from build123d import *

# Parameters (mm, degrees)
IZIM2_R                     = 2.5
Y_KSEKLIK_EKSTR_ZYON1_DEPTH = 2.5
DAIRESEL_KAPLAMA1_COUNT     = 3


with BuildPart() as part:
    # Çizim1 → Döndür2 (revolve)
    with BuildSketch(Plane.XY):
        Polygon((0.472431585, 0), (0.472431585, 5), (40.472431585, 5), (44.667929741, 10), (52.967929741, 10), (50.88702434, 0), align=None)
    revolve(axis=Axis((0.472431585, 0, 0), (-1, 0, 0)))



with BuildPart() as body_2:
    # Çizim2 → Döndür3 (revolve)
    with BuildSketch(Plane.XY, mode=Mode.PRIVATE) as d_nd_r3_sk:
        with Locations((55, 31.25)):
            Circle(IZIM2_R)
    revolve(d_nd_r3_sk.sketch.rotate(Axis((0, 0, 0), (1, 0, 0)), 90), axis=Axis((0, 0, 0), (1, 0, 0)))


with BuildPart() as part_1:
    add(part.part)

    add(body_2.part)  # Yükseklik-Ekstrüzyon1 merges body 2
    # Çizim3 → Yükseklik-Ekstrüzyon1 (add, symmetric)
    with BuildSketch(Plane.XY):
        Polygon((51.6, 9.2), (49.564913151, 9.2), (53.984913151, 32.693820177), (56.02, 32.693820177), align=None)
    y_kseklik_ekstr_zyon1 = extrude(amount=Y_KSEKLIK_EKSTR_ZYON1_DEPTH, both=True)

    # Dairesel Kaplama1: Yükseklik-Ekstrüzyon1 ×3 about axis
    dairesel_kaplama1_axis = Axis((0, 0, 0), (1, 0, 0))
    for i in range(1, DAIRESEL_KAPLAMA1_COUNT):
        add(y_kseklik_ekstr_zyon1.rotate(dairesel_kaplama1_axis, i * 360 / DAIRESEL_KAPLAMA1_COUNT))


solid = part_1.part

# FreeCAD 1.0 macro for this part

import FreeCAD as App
import Part
import Sketcher

V = App.Vector
Q = App.Units.Quantity

doc = App.newDocument("Part")
params = doc.addObject("Spreadsheet::Sheet", "Params")
for row, (alias, value) in enumerate([
    ("sketch1_width", "40 mm"),
    ("sketch1_height", "5 mm"),
    ("sketch1_width2", "8.3 mm"),
    ("revolution_angle", "360 deg"),
    ("sketch2_diameter", "5 mm"),
    ("revolution2_angle", "360 deg"),
    ("pad1_length", "5 mm"),
], start=1):
    params.set(f"A{row}", alias)
    params.set(f"B{row}", "=" + value)
    params.setAlias(f"B{row}", alias)

body = doc.addObject("PartDesign::Body", "Body")

sketch1 = doc.addObject("Sketcher::SketchObject", "Sketch")
body.addObject(sketch1)
sketch1.AttachmentSupport = (doc.XY_Plane, [""])
sketch1.MapMode = "FlatFace"
sketch1.addGeometry(Part.LineSegment(V(0.472432, 5, 0), V(0.472432, 0, 0)), False)
sketch1.addGeometry(Part.LineSegment(V(0.472432, 0, 0), V(50.887024, 0, 0)), False)
sketch1.addGeometry(Part.LineSegment(V(50.887024, 0, 0), V(52.96793, 10, 0)), False)
sketch1.addGeometry(Part.LineSegment(V(52.96793, 10, 0), V(44.66793, 10, 0)), False)
sketch1.addGeometry(Part.LineSegment(V(44.66793, 10, 0), V(40.472432, 5, 0)), False)
sketch1.addGeometry(Part.LineSegment(V(40.472432, 5, 0), V(0.472432, 5, 0)), False)
sketch1.addConstraint(Sketcher.Constraint("Coincident", 0, 2, 1, 1))
sketch1.addConstraint(Sketcher.Constraint("Coincident", 1, 2, 2, 1))
sketch1.addConstraint(Sketcher.Constraint("Coincident", 2, 2, 3, 1))
sketch1.addConstraint(Sketcher.Constraint("Coincident", 3, 2, 4, 1))
sketch1.addConstraint(Sketcher.Constraint("Coincident", 4, 2, 5, 1))
sketch1.addConstraint(Sketcher.Constraint("Coincident", 5, 2, 0, 1))
sketch1.addConstraint(Sketcher.Constraint("Vertical", 0))
sketch1.addConstraint(Sketcher.Constraint("Horizontal", 1))
sketch1.addConstraint(Sketcher.Constraint("Horizontal", 3))
sketch1.addConstraint(Sketcher.Constraint("Horizontal", 5))
sketch1.addConstraint(Sketcher.Constraint("PointOnObject", 0, 2, -1))
sketch1.addConstraint(Sketcher.Constraint("DistanceX", 5, 2, 5, 1, Q("40 mm")))
sketch1.addConstraint(Sketcher.Constraint("DistanceY", 0, 2, 0, 1, Q("5 mm")))
sketch1.addConstraint(Sketcher.Constraint("Angle", 4, Q("-130 deg")))
sketch1.addConstraint(Sketcher.Constraint("DistanceX", 3, 2, 3, 1, Q("8.3 mm")))
sketch1.addConstraint(Sketcher.Constraint("DistanceY", -1, 1, 2, 2, Q("10 mm")))
sketch1.addConstraint(Sketcher.Constraint("DistanceX", 1, 1, 1, 2, Q("50.414593 mm")))
sketch1.addConstraint(Sketcher.Constraint("DistanceX", -1, 1, 0, 2, Q("0.472432 mm")))
sketch1.setExpression("Constraints[11]", "Params.sketch1_width")
sketch1.setExpression("Constraints[12]", "Params.sketch1_height")
sketch1.setExpression("Constraints[14]", "Params.sketch1_width2")
revolution = doc.addObject("PartDesign::Revolution", "Revolution")
body.addObject(revolution)
revolution.Profile = sketch1
revolution.ReferenceAxis = (sketch1, ["H_Axis"])
revolution.setExpression("Angle", "Params.revolution_angle")
body2 = doc.addObject("PartDesign::Body", "Body001")

sketch2 = doc.addObject("Sketcher::SketchObject", "Sketch001")
body2.addObject(sketch2)
sketch2.AttachmentSupport = (doc.getObject("XY_Plane001"), [""])
sketch2.MapMode = "FlatFace"
sketch2.addGeometry(Part.Circle(V(55, 31.25, 0), V(0, 0, 1), 2.5), False)
sketch2.addConstraint(Sketcher.Constraint("Diameter", 0, Q("5 mm")))
sketch2.addConstraint(Sketcher.Constraint("DistanceX", -1, 1, 0, 3, Q("55 mm")))
sketch2.addConstraint(Sketcher.Constraint("DistanceY", -1, 1, 0, 3, Q("31.25 mm")))
sketch2.setExpression("Constraints[0]", "Params.sketch2_diameter")
revolution2 = doc.addObject("PartDesign::Revolution", "Revolution001")
body2.addObject(revolution2)
revolution2.Profile = sketch2
revolution2.ReferenceAxis = (sketch2, ["H_Axis"])
revolution2.setExpression("Angle", "Params.revolution2_angle")
body.AllowCompound = True
doc.recompute()

boolean = doc.addObject("PartDesign::Boolean", "Boolean")
body.addObject(boolean)
boolean.Type = "Fuse"
boolean.addObjects([body2])

sketch3 = doc.addObject("Sketcher::SketchObject", "Sketch002")
body.addObject(sketch3)
sketch3.AttachmentSupport = (doc.XY_Plane, [""])
sketch3.MapMode = "FlatFace"
sketch3.addGeometry(Part.LineSegment(V(49.564913, 9.2, 0), V(51.6, 9.2, 0)), False)
sketch3.addGeometry(Part.LineSegment(V(51.6, 9.2, 0), V(56.02, 32.69382, 0)), False)
sketch3.addGeometry(Part.LineSegment(V(56.02, 32.69382, 0), V(53.984913, 32.69382, 0)), False)
sketch3.addGeometry(Part.LineSegment(V(53.984913, 32.69382, 0), V(49.564913, 9.2, 0)), False)
sketch3.addConstraint(Sketcher.Constraint("Coincident", 0, 2, 1, 1))
sketch3.addConstraint(Sketcher.Constraint("Coincident", 1, 2, 2, 1))
sketch3.addConstraint(Sketcher.Constraint("Coincident", 2, 2, 3, 1))
sketch3.addConstraint(Sketcher.Constraint("Coincident", 3, 2, 0, 1))
sketch3.addConstraint(Sketcher.Constraint("Horizontal", 0))
sketch3.addConstraint(Sketcher.Constraint("Horizontal", 2))
sketch3.addConstraint(Sketcher.Constraint("Parallel", 1, 3))
sketch3.addConstraint(Sketcher.Constraint("DistanceX", -1, 1, 0, 2, Q("51.6 mm")))
sketch3.addConstraint(Sketcher.Constraint("DistanceY", -1, 1, 0, 2, Q("9.2 mm")))
sketch3.addConstraint(Sketcher.Constraint("DistanceX", -1, 1, 1, 2, Q("56.02 mm")))
sketch3.addConstraint(Sketcher.Constraint("DistanceX", 0, 1, 0, 2, Q("2.035087 mm")))
sketch3.addConstraint(Sketcher.Constraint("DistanceY", -1, 1, 1, 2, Q("32.69382 mm")))
pad1 = doc.addObject("PartDesign::Pad", "Pad")
body.addObject(pad1)
pad1.Profile = sketch3
pad1.setExpression("Length", "Params.pad1_length")
pad1.Midplane = True
doc.recompute()

polarpattern = doc.addObject("PartDesign::PolarPattern", "PolarPattern")
body.addObject(polarpattern)
polarpattern.Originals = [pad1]
polarpattern.Axis = (doc.X_Axis, [""])
polarpattern.Angle = 360
polarpattern.Occurrences = 3
body.Tip = polarpattern

doc.recompute()
